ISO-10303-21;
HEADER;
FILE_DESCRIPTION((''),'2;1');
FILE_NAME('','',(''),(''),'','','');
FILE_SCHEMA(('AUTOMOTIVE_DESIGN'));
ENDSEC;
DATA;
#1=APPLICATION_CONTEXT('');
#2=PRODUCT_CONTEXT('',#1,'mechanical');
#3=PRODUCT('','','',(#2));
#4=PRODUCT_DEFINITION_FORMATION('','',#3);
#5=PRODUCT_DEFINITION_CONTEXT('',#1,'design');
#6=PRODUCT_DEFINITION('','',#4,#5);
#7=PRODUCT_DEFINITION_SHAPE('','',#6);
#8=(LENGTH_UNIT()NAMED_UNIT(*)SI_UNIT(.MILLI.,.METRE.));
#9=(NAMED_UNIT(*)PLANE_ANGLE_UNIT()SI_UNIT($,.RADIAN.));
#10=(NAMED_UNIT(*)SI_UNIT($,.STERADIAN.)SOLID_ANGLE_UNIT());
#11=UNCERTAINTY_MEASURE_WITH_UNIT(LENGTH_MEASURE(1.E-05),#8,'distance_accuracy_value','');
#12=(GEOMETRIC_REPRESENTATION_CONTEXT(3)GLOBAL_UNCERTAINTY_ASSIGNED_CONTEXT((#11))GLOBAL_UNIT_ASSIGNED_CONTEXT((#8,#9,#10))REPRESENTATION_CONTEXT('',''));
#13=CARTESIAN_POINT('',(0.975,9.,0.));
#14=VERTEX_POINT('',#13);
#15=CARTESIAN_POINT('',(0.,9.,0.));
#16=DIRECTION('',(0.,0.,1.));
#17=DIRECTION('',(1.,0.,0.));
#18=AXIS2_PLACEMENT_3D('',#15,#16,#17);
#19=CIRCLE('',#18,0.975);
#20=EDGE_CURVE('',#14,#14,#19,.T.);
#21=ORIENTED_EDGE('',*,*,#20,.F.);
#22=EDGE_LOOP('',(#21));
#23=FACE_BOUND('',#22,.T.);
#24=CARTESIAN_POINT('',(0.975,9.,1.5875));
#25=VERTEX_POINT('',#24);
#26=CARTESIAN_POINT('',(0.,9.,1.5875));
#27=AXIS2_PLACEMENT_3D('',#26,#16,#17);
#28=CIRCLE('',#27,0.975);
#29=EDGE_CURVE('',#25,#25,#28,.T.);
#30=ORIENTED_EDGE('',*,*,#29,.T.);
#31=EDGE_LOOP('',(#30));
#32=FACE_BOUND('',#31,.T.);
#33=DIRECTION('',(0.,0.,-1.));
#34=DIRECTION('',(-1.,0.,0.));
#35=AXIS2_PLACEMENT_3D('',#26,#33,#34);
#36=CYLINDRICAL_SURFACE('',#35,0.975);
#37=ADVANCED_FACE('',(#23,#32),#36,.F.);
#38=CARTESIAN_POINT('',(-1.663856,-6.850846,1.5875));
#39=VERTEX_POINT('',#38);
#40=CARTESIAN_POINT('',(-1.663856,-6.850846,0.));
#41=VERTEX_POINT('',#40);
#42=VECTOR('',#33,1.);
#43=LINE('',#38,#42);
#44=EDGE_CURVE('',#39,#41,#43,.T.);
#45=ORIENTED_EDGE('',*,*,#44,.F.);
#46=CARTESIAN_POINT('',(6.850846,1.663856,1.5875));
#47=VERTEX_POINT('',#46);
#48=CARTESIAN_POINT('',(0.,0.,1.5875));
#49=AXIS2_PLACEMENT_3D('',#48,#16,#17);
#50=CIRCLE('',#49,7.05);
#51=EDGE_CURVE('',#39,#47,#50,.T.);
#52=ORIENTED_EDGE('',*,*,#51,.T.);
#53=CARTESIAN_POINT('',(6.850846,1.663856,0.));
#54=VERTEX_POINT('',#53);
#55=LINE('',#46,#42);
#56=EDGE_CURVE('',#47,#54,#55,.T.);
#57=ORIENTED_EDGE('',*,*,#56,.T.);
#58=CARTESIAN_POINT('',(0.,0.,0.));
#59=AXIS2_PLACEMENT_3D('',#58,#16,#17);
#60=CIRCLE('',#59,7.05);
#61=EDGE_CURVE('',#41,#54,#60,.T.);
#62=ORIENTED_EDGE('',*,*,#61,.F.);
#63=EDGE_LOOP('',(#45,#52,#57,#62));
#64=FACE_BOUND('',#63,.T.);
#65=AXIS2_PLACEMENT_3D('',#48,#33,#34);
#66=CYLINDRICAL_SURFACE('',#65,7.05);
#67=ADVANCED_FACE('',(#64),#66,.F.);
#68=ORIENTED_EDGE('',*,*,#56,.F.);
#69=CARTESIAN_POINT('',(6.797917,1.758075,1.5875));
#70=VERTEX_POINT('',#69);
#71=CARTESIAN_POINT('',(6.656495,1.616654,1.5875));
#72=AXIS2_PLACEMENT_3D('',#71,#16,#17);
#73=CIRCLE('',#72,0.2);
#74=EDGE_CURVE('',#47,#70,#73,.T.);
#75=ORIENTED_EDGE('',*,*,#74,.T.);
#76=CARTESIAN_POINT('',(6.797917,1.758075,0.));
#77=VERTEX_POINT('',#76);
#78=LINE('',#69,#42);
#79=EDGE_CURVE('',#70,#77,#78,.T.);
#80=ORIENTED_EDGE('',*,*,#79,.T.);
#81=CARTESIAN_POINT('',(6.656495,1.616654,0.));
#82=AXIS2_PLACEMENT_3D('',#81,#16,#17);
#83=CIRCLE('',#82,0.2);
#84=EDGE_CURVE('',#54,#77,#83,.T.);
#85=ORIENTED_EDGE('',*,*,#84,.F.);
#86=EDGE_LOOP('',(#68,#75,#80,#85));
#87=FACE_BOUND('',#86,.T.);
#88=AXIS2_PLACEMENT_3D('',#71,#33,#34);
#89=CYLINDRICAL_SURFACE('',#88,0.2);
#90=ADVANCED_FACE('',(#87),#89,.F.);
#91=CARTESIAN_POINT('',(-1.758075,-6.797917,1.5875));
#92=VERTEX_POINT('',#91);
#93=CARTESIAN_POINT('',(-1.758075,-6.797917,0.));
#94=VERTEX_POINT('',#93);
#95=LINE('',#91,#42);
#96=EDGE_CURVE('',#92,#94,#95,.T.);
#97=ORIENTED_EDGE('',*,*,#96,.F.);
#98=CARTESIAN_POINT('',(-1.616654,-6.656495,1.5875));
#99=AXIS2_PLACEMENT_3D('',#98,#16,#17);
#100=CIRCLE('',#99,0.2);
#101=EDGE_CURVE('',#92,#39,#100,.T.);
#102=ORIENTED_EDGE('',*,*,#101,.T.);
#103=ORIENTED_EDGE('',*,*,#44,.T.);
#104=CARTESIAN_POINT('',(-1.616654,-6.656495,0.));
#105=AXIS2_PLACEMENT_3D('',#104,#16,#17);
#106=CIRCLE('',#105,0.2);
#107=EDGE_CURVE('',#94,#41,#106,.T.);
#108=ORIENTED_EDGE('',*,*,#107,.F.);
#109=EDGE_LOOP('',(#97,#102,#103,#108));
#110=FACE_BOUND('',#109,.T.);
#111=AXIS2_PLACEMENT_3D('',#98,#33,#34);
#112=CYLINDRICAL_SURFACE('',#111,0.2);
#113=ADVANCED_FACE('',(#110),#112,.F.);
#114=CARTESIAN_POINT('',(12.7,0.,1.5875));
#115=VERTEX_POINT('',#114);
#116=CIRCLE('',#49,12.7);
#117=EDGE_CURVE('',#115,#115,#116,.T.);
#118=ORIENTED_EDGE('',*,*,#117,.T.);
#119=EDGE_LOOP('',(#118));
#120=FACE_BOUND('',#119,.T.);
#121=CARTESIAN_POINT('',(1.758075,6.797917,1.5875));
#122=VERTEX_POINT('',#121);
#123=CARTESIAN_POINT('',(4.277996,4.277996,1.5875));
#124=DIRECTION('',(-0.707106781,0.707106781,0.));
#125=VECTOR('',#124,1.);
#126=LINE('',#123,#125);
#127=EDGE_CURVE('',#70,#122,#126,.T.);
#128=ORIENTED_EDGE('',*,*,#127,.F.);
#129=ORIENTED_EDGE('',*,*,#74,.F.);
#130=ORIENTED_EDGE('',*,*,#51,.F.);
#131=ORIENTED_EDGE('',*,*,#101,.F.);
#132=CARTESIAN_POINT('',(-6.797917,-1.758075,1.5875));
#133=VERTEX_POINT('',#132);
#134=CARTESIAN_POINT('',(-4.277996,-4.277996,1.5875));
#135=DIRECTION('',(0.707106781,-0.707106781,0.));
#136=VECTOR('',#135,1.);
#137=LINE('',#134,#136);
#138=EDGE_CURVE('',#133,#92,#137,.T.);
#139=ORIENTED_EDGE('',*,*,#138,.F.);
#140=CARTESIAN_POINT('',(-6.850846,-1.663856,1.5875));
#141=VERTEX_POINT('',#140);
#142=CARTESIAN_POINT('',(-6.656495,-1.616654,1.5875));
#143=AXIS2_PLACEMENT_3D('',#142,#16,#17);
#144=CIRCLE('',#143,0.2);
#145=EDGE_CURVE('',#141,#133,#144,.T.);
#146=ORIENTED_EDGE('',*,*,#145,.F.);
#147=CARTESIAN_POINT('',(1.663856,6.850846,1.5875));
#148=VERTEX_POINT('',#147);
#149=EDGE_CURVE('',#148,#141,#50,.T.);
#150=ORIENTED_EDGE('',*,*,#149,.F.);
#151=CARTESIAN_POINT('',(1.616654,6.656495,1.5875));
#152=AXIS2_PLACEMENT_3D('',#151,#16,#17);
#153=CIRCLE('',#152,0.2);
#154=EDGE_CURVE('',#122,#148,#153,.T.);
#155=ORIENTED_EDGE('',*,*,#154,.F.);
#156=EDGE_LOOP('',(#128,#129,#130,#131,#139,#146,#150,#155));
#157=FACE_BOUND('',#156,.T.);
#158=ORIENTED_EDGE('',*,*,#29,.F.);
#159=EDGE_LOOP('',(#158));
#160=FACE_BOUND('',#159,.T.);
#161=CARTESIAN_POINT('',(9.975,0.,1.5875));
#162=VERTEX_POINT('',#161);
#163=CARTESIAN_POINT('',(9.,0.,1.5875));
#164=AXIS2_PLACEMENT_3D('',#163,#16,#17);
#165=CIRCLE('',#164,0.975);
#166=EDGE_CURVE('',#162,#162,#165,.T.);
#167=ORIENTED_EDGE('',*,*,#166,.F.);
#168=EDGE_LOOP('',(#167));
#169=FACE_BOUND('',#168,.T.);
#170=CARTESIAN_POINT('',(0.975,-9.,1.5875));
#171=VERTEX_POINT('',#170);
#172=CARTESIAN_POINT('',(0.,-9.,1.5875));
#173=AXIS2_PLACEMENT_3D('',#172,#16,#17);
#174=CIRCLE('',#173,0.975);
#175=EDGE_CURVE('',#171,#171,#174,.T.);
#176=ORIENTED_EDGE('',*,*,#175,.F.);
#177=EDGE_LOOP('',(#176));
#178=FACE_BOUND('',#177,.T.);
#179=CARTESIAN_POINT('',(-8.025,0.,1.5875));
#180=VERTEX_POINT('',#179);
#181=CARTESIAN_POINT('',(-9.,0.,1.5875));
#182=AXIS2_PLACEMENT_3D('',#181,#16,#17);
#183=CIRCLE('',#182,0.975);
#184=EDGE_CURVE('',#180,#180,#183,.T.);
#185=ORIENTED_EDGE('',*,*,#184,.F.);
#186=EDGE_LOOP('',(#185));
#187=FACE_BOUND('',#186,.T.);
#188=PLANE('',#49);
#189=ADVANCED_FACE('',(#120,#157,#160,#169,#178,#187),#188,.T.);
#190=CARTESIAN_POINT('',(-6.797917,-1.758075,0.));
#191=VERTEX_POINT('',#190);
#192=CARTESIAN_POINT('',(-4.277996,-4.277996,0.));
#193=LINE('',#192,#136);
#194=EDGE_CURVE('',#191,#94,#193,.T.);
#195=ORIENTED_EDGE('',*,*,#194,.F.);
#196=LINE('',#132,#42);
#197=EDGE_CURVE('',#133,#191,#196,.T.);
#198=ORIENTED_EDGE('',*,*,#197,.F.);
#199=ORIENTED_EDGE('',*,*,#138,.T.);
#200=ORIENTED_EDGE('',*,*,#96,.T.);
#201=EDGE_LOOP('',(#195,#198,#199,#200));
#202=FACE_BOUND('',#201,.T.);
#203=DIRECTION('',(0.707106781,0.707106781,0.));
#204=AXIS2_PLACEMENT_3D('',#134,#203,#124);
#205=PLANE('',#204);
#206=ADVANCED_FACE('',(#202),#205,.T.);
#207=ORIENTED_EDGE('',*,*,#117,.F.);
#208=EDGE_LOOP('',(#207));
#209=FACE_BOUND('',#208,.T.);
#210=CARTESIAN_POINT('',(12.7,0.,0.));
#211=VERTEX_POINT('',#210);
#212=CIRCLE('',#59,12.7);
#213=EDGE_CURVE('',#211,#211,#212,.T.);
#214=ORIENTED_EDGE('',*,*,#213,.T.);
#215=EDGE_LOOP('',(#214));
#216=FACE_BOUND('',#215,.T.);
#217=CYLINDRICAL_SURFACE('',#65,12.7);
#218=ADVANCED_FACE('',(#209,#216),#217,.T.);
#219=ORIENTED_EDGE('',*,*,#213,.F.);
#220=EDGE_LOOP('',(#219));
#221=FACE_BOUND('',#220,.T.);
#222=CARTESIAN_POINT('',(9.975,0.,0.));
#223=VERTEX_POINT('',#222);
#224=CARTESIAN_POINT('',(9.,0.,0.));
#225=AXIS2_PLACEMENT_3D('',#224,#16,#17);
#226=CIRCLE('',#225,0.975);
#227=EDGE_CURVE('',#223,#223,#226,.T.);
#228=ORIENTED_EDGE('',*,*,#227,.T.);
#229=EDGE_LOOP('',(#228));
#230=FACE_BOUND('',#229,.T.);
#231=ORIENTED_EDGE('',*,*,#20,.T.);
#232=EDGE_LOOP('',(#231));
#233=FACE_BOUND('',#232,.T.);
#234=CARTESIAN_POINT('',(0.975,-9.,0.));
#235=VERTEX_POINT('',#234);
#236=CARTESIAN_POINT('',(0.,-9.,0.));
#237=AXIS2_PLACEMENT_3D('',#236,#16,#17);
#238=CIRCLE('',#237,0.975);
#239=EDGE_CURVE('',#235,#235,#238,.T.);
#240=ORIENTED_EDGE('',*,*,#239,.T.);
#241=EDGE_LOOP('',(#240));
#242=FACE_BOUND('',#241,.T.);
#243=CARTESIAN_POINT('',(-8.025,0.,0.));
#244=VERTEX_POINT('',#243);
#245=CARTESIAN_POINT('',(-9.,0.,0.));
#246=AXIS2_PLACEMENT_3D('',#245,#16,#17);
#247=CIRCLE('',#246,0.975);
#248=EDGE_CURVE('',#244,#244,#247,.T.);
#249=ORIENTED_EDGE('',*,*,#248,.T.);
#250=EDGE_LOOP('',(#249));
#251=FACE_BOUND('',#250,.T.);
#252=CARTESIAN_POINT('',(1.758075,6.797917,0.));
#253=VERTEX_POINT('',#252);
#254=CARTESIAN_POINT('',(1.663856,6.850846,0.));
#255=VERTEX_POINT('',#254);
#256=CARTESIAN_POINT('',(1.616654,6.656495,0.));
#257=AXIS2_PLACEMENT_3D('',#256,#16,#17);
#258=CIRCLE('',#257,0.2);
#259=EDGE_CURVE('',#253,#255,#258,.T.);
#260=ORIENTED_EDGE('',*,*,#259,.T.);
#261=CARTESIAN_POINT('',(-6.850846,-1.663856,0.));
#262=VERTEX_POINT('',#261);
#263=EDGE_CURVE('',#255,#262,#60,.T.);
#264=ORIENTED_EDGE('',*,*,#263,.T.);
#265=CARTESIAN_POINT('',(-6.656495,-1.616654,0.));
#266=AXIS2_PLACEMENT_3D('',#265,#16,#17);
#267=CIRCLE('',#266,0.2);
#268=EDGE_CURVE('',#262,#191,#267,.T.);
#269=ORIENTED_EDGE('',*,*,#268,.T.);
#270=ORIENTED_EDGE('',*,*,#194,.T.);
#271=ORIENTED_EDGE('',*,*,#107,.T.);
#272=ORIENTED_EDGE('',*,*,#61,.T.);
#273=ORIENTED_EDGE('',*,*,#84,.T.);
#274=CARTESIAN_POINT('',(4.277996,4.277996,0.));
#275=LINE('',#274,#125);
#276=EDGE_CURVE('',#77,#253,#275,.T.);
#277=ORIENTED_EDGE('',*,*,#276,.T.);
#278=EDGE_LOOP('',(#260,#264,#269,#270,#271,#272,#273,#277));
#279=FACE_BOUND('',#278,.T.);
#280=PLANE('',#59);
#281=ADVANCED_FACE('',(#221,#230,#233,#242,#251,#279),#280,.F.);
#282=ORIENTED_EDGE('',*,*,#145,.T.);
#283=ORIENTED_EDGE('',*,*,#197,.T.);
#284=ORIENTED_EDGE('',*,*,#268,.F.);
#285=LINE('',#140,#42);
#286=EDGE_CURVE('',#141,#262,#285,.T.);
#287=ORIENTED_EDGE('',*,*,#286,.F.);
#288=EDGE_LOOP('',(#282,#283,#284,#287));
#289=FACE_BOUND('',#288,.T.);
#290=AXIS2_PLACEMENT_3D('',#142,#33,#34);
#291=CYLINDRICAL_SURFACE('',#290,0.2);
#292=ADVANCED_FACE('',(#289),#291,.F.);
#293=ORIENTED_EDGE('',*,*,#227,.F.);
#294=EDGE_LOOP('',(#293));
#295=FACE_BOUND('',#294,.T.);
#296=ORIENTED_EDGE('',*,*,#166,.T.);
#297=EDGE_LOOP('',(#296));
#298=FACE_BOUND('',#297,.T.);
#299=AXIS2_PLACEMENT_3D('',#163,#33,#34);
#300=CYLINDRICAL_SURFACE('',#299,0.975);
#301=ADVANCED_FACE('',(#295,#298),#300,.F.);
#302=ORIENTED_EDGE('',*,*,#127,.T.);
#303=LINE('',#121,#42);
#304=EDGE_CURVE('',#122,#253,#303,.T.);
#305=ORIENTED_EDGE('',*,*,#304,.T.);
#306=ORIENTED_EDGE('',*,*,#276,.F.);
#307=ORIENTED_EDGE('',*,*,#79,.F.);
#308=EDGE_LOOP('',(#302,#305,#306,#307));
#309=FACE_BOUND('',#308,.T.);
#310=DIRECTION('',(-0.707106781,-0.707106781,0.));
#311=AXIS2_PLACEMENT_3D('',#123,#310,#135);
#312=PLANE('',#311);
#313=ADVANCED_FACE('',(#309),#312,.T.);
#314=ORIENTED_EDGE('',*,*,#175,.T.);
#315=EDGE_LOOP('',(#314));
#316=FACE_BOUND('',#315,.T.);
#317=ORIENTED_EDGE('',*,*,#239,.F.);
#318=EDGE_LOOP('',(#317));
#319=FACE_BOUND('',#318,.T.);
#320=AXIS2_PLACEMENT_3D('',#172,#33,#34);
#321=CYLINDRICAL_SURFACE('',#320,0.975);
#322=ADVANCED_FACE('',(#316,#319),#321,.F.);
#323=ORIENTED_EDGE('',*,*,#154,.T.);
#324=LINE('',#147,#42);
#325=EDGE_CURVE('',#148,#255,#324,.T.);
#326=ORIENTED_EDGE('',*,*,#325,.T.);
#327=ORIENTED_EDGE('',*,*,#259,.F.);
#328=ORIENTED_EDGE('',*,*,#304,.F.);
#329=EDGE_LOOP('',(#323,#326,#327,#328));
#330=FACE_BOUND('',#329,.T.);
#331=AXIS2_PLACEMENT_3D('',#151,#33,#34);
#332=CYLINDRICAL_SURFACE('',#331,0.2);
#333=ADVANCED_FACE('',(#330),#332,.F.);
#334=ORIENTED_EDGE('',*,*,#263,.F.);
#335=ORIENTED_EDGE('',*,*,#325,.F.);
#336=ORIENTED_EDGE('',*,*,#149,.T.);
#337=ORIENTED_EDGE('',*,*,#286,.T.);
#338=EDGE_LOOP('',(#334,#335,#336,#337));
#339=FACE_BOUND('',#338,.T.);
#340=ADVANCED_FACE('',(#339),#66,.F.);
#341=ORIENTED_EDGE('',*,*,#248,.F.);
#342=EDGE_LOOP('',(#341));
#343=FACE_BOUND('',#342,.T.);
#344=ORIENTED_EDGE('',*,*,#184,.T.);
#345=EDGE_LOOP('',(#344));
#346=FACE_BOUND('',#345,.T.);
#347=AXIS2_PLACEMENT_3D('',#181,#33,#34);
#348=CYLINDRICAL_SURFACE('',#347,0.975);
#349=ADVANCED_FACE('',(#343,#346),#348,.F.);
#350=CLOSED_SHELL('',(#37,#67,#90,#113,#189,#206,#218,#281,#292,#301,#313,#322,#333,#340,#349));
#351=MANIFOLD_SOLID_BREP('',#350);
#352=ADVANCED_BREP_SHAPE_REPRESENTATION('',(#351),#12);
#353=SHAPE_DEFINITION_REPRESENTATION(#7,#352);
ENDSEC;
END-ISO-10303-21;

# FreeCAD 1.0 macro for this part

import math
import FreeCAD as App
import Part
import Sketcher
from FreeCAD import Vector
Q = App.Units.Quantity

doc = App.newDocument("Part")
body = doc.addObject("PartDesign::Body", "Body")

# Sketch on XY plane
sketch1 = body.newObject("Sketcher::SketchObject", "Sketch")
sketch1.AttachmentSupport = (doc.getObject("XY_Plane"), [""])
sketch1.MapMode = "FlatFace"
sketch1.addGeometry(Part.Circle(Vector(0, 0, 0), Vector(0, 0, 1), 12.7), False)
sketch1.addGeometry(Part.Circle(Vector(0, -9, 0), Vector(0, 0, 1), 0.975), False)
sketch1.addGeometry(Part.Circle(Vector(-9, 0, 0), Vector(0, 0, 1), 0.975), False)
sketch1.addGeometry(Part.ArcOfCircle(Part.Circle(Vector(6.656495, 1.616654, 0), Vector(0, 0, 1), 0.2), math.radians(13.651042), math.radians(44.999999)), False)
sketch1.addGeometry(Part.ArcOfCircle(Part.Circle(Vector(0, 0, 0), Vector(0, 0, 1), 7.05), math.radians(-103.651042), math.radians(13.651042)), False)
sketch1.addGeometry(Part.ArcOfCircle(Part.Circle(Vector(-1.616654, -6.656495, 0), Vector(0, 0, 1), 0.2), math.radians(-134.999999), math.radians(-103.651042)), False)
sketch1.addGeometry(Part.LineSegment(Vector(-1.758075, -6.797917, 0), Vector(-6.797917, -1.758075, 0)), False)
sketch1.addGeometry(Part.ArcOfCircle(Part.Circle(Vector(-6.656495, -1.616654, 0), Vector(0, 0, 1), 0.2), math.radians(-166.348958), math.radians(-135.000001)), False)
sketch1.addGeometry(Part.ArcOfCircle(Part.Circle(Vector(0, 0, 0), Vector(0, 0, 1), 7.05), math.radians(76.348958), math.radians(193.651042)), False)
sketch1.addGeometry(Part.ArcOfCircle(Part.Circle(Vector(1.616654, 6.656495, 0), Vector(0, 0, 1), 0.2), math.radians(45.000001), math.radians(76.348958)), False)
sketch1.addGeometry(Part.LineSegment(Vector(1.758075, 6.797917, 0), Vector(6.797917, 1.758075, 0)), False)
sketch1.addGeometry(Part.Circle(Vector(9, 0, 0), Vector(0, 0, 1), 0.975), False)
sketch1.addGeometry(Part.Circle(Vector(0, 9, 0), Vector(0, 0, 1), 0.975), False)
sketch1.addConstraint(Sketcher.Constraint("Tangent", 3, 1, 4, 2))
sketch1.addConstraint(Sketcher.Constraint("Tangent", 4, 1, 5, 2))
sketch1.addConstraint(Sketcher.Constraint("Tangent", 5, 1, 6, 1))
sketch1.addConstraint(Sketcher.Constraint("Tangent", 6, 2, 7, 2))
sketch1.addConstraint(Sketcher.Constraint("Tangent", 7, 1, 8, 2))
sketch1.addConstraint(Sketcher.Constraint("Tangent", 8, 1, 9, 2))
sketch1.addConstraint(Sketcher.Constraint("Tangent", 9, 1, 10, 1))
sketch1.addConstraint(Sketcher.Constraint("Tangent", 10, 2, 3, 2))
sketch1.addConstraint(Sketcher.Constraint("Coincident", 0, 3, -1, 1))
sketch1.addConstraint(Sketcher.Constraint("Coincident", 4, 3, -1, 1))
sketch1.addConstraint(Sketcher.Constraint("Coincident", 8, 3, -1, 1))
sketch1.addConstraint(Sketcher.Constraint("Equal", 1, 2))
sketch1.addConstraint(Sketcher.Constraint("Equal", 3, 5))
sketch1.addConstraint(Sketcher.Constraint("Equal", 5, 7))
sketch1.addConstraint(Sketcher.Constraint("Equal", 4, 8))
sketch1.addConstraint(Sketcher.Constraint("Equal", 7, 9))
sketch1.addConstraint(Sketcher.Constraint("Equal", 2, 11))
sketch1.addConstraint(Sketcher.Constraint("Equal", 11, 12))
sketch1.addConstraint(Sketcher.Constraint("Symmetric", 2, 3, 11, 3, -1, 1))
sketch1.addConstraint(Sketcher.Constraint("Symmetric", 1, 3, 12, 3, -1, 1))
sketch1.addConstraint(Sketcher.Constraint("Symmetric", 5, 1, 9, 1, -1, 1))
sketch1.addConstraint(Sketcher.Constraint("PointOnObject", 1, 3, -2))
sketch1.addConstraint(Sketcher.Constraint("PointOnObject", 2, 3, -1))
sketch1.addConstraint(Sketcher.Constraint("Diameter", 0, 25.4))
sketch1.addConstraint(Sketcher.Constraint("Radius", 3, 0.2))
sketch1.addConstraint(Sketcher.Constraint("Diameter", 1, 1.95))
sketch1.addConstraint(Sketcher.Constraint("Angle", 6, Q("135 deg")))
sketch1.addConstraint(Sketcher.Constraint("Radius", 4, 7.05))
sketch1.addConstraint(Sketcher.Constraint("DistanceY", 1, 3, -1, 1, 9.0))
sketch1.addConstraint(Sketcher.Constraint("DistanceX", 2, 3, -1, 1, 9.0))
sketch1.addConstraint(Sketcher.Constraint("DistanceY", 3, 3, 3, 1, 0.047202))
pad1 = body.newObject("PartDesign::Pad", "Pad")
pad1.Profile = sketch1
pad1.Length = 1.5875

doc.recompute()
